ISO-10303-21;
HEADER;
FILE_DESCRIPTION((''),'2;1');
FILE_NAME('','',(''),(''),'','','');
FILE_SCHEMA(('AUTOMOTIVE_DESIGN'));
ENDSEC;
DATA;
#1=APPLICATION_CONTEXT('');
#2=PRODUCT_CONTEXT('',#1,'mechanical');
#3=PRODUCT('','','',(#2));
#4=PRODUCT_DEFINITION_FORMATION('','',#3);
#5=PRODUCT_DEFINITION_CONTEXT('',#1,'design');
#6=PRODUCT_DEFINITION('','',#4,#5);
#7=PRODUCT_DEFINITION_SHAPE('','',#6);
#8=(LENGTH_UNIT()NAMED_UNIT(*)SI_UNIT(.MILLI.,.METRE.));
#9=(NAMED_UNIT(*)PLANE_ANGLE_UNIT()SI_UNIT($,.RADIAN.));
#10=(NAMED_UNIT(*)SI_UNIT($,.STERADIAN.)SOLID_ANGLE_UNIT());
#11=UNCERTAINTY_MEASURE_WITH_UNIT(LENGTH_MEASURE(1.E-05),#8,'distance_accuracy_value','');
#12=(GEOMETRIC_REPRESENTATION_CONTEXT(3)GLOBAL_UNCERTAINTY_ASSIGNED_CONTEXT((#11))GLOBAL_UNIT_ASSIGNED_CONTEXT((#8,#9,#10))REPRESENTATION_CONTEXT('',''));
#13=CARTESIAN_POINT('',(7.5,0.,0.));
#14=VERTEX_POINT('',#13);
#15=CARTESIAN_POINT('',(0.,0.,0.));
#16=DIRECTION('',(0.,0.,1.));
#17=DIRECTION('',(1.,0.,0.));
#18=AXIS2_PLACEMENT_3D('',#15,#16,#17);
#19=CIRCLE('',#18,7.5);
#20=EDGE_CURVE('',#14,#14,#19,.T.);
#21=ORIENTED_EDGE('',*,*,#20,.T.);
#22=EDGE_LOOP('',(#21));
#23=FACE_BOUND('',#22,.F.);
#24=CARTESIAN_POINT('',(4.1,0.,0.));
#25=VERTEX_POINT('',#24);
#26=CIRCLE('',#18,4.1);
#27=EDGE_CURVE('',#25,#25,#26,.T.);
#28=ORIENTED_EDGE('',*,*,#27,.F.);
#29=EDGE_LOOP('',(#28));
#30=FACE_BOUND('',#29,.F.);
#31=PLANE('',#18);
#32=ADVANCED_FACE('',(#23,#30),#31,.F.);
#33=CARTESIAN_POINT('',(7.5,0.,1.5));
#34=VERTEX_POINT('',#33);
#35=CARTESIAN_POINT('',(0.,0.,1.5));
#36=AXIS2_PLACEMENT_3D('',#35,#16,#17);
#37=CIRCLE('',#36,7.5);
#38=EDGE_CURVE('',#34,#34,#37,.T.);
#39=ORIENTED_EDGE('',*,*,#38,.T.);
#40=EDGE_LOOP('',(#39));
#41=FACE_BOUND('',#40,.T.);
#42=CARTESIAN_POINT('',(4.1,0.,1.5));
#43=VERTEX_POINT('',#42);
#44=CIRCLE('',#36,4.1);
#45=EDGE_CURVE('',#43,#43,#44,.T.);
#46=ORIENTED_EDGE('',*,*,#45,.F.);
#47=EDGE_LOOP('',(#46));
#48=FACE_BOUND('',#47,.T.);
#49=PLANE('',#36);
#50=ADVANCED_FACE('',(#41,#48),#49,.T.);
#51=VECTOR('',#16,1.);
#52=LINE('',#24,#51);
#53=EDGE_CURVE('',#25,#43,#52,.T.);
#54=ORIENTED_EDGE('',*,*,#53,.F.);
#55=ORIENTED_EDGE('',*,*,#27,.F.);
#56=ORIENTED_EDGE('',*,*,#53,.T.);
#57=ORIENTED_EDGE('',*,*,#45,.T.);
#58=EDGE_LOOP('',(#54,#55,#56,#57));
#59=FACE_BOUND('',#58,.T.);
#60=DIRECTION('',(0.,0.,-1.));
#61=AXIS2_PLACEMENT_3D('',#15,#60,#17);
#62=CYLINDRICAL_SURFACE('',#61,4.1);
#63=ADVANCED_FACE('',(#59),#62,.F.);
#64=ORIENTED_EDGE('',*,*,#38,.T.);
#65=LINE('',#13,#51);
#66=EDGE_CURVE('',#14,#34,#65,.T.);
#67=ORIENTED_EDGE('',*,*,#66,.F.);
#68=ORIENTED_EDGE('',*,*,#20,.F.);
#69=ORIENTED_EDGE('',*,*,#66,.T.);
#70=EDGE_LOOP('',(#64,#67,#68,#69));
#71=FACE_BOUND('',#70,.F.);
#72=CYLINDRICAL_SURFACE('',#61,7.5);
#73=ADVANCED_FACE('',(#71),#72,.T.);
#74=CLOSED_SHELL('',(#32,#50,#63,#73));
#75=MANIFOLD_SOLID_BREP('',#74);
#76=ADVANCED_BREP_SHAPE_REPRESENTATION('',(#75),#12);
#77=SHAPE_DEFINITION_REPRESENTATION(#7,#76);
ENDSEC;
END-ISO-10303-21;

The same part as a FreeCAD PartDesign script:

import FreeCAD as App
import Part
import Sketcher
from FreeCAD import Vector

doc = App.newDocument("Part")
params = doc.addObject("Spreadsheet::Sheet", "Params")
for row, (alias, value) in enumerate([
    ("sketch1_diameter", "15 mm"),
    ("sketch1_diameter2", "8.2 mm"),
    ("pad1_length", "1.5 mm"),
], start=1):
    params.set(f"A{row}", alias)
    params.set(f"B{row}", "=" + value)
    params.setAlias(f"B{row}", alias)

body = doc.addObject("PartDesign::Body", "Body")

# Sketch on XY plane
sketch1 = body.newObject("Sketcher::SketchObject", "Sketch")
sketch1.AttachmentSupport = (doc.getObject("XY_Plane"), [""])
sketch1.MapMode = "FlatFace"
sketch1.addGeometry(Part.Circle(Vector(0, 0, 0), Vector(0, 0, 1), 7.5), False)
sketch1.addGeometry(Part.Circle(Vector(0, 0, 0), Vector(0, 0, 1), 4.1), False)
sketch1.addConstraint(Sketcher.Constraint("Coincident", 0, 3, -1, 1))
sketch1.addConstraint(Sketcher.Constraint("Coincident", 1, 3, -1, 1))
sketch1.addConstraint(Sketcher.Constraint("Diameter", 0, 15.0))
sketch1.addConstraint(Sketcher.Constraint("Diameter", 1, 8.2))
sketch1.setExpression("Constraints[2]", "Params.sketch1_diameter")
sketch1.setExpression("Constraints[3]", "Params.sketch1_diameter2")
pad1 = body.newObject("PartDesign::Pad", "Pad")
pad1.Profile = sketch1
pad1.setExpression("Length", "Params.pad1_length")

doc.recompute()
